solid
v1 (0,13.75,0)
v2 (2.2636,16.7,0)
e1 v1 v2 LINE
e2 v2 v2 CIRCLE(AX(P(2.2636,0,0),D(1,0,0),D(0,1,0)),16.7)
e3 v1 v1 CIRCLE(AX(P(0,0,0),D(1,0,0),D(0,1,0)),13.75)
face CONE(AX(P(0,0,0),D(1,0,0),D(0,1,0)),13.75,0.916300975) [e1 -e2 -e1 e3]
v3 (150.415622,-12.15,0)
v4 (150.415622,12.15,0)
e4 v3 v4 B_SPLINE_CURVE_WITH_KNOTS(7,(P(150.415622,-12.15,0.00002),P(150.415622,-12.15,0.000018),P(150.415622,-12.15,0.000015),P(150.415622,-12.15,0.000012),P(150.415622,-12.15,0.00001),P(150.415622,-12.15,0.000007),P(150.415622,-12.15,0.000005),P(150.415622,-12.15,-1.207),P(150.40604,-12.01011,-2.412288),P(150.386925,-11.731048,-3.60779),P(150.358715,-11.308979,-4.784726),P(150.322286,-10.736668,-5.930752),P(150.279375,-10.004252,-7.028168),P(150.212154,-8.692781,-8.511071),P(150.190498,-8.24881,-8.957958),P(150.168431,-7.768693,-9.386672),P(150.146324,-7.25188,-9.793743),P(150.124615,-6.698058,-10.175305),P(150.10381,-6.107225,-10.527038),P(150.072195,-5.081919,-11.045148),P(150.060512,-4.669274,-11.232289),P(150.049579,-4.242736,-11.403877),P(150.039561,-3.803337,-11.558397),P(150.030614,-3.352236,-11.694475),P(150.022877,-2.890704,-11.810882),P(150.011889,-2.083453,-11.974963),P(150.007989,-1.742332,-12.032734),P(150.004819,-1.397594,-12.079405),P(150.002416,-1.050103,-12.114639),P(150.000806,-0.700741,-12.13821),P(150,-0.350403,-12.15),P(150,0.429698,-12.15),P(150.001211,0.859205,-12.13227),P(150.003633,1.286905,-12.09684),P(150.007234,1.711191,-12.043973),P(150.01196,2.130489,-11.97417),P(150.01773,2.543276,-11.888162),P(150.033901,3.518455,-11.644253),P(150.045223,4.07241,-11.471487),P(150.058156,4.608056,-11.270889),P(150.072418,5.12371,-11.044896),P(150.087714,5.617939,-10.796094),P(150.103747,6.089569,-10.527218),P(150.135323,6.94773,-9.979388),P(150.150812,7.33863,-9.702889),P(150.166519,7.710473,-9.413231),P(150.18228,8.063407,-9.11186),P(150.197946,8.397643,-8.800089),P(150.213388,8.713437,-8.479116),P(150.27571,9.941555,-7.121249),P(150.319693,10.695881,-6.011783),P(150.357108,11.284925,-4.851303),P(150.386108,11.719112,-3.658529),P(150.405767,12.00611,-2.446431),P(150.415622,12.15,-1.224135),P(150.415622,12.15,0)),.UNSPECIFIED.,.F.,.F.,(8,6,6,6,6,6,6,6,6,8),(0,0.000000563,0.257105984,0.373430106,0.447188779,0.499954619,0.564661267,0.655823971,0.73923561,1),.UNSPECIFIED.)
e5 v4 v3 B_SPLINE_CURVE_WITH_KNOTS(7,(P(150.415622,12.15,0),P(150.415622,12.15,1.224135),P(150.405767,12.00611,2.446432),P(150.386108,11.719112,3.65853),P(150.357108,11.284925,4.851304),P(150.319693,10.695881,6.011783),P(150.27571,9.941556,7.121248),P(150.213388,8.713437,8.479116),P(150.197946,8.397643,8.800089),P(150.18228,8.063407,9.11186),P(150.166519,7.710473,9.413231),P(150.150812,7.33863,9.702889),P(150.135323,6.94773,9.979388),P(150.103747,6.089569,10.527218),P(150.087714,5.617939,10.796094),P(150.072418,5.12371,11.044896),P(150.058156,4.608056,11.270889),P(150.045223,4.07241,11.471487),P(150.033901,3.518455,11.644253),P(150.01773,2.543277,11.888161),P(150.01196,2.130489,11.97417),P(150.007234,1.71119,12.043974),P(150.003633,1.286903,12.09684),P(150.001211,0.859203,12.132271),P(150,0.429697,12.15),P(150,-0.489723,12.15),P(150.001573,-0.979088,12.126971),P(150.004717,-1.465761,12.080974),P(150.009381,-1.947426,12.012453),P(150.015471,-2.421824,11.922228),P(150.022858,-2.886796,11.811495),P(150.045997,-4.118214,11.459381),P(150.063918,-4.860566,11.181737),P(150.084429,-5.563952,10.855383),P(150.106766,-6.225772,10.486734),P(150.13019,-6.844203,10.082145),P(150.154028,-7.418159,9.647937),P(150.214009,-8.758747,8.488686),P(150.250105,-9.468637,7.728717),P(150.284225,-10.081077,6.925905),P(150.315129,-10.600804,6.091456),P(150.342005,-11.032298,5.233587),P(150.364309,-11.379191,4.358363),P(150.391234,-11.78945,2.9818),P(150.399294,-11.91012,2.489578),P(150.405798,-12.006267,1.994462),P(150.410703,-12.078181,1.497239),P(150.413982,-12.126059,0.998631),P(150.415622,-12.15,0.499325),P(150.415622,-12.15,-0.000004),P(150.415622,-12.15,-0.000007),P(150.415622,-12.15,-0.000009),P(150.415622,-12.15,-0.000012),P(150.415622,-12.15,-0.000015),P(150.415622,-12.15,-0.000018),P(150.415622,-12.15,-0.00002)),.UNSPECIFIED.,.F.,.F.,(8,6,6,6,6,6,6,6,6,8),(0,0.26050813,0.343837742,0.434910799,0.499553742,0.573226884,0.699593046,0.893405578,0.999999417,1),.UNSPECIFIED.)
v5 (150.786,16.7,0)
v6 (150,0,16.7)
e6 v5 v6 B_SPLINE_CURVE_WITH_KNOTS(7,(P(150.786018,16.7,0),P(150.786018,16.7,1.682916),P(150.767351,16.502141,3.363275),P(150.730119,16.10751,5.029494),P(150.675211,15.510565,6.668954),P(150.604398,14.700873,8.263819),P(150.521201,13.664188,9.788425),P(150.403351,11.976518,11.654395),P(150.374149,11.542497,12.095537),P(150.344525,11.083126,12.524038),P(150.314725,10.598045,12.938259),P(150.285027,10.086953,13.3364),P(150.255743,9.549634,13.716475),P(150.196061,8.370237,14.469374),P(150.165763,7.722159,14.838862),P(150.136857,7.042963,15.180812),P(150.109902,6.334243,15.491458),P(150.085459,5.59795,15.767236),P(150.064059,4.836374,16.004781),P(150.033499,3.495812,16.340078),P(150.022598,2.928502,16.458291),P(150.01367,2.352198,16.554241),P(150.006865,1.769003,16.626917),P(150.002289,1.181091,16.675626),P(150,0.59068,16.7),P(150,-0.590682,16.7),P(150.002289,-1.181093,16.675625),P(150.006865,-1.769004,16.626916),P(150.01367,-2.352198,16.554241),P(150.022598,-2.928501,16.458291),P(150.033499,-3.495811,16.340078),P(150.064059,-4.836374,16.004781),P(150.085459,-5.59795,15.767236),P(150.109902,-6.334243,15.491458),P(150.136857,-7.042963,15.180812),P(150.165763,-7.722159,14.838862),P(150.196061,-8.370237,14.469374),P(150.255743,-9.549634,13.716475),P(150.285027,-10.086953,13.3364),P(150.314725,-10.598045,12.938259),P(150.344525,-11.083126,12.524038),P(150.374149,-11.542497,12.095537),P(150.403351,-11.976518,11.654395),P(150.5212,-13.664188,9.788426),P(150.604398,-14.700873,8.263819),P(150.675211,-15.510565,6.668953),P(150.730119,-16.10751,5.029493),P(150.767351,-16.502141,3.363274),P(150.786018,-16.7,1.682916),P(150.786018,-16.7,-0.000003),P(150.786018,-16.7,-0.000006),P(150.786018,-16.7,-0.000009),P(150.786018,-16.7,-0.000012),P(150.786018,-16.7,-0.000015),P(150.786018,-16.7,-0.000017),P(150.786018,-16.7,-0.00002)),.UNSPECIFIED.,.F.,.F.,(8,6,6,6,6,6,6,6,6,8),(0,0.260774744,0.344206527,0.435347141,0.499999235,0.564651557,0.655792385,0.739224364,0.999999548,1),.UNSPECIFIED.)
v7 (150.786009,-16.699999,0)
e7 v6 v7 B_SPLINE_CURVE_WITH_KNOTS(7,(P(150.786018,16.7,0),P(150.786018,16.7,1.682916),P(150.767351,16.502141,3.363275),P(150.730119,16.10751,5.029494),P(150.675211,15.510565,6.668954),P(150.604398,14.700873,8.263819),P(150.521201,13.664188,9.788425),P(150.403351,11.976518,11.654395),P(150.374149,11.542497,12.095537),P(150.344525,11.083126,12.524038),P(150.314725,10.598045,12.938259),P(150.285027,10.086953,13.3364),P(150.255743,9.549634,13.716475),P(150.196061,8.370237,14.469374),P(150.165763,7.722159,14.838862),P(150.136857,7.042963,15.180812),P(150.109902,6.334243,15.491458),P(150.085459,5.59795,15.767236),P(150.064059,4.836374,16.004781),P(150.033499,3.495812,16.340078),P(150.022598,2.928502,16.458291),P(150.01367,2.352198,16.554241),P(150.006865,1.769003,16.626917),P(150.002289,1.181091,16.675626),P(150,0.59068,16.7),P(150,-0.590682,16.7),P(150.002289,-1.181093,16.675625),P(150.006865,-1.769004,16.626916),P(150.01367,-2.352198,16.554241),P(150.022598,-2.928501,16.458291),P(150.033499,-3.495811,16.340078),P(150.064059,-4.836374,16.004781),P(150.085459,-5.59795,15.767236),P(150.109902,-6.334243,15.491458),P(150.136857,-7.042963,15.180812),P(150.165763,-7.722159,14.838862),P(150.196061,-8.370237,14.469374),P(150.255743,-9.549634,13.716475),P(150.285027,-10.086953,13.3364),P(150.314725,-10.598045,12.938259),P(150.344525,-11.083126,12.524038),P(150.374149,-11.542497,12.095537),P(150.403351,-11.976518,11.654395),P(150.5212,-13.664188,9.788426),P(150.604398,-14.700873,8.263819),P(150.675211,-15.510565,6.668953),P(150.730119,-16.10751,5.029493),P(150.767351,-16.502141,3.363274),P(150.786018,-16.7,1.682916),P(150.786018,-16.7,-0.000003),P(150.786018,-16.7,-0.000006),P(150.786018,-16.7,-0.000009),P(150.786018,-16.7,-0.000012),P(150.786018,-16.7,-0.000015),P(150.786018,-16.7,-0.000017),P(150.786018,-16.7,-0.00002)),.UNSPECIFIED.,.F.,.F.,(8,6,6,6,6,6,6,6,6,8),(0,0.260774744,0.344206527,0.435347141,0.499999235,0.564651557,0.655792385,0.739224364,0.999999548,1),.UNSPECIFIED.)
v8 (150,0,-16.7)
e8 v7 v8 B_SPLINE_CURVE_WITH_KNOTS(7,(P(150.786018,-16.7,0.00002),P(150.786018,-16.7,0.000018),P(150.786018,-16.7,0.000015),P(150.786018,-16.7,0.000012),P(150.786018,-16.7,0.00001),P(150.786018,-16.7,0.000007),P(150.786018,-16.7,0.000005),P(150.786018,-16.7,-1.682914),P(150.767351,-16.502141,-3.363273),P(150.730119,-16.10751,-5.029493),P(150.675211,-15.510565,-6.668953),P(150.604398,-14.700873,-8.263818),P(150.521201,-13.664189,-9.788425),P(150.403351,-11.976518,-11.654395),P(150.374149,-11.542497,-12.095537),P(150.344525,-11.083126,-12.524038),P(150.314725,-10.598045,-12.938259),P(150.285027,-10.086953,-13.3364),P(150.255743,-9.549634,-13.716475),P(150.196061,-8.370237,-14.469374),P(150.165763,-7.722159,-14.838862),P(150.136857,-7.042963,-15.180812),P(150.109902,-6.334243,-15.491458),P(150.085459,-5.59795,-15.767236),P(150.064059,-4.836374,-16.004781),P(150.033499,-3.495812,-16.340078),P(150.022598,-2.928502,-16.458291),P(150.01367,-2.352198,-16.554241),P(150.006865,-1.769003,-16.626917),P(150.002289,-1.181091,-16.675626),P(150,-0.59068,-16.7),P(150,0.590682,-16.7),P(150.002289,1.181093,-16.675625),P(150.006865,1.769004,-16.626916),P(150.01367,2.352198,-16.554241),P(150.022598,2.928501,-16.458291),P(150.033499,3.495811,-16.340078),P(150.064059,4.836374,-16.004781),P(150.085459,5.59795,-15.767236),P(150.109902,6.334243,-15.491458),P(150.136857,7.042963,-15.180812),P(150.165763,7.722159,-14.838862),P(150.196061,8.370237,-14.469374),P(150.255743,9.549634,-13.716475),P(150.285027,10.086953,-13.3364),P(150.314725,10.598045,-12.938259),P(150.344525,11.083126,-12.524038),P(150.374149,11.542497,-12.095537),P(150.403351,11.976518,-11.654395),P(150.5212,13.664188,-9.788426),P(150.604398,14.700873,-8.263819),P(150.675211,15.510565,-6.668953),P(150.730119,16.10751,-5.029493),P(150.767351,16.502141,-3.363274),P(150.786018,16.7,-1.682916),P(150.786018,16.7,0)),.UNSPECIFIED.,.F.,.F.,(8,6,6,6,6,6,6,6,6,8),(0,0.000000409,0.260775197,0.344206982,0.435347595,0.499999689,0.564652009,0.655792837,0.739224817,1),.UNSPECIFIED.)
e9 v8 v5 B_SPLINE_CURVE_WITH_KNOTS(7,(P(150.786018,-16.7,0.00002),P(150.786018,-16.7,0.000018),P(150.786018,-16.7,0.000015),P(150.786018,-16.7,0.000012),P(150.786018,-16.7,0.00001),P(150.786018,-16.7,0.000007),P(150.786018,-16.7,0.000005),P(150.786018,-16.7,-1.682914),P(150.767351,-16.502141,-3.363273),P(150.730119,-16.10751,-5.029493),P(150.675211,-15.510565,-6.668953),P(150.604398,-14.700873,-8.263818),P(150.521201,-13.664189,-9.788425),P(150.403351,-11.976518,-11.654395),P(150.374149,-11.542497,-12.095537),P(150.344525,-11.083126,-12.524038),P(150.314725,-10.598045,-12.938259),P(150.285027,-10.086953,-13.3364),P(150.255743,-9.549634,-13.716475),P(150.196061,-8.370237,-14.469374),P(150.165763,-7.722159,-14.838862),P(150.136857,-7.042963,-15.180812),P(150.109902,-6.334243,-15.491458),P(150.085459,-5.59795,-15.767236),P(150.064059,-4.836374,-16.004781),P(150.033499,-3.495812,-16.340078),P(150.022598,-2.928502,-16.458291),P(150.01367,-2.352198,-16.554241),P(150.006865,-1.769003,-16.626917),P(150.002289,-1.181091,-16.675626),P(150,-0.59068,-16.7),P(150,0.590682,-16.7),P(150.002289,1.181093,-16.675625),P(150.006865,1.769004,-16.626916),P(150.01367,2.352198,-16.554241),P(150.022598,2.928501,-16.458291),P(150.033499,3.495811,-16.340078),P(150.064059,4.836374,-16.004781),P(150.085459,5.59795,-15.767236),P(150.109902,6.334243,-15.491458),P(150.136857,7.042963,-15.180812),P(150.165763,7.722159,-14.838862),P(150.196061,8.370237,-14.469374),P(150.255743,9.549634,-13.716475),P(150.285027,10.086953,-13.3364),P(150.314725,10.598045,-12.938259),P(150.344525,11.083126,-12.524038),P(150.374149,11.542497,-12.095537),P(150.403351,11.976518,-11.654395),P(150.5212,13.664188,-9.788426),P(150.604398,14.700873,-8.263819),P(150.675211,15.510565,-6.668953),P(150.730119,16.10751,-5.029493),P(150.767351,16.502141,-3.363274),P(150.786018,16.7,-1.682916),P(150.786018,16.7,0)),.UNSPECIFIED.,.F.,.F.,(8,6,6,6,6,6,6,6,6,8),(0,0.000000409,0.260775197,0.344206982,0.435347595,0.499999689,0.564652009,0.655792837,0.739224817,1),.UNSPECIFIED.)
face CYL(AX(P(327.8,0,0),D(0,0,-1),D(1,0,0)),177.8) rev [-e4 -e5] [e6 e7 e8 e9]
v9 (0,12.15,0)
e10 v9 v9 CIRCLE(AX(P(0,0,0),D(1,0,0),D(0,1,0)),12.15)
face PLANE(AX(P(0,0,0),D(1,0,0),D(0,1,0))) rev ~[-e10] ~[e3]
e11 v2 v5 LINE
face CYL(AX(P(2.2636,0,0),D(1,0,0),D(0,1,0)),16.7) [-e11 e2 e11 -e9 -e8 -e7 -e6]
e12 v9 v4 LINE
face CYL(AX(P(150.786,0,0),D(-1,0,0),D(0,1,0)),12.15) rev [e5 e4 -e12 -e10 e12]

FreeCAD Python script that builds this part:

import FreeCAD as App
import Part
import Sketcher
from FreeCAD import Vector
Q = App.Units.Quantity


def add_polygon(sketch, points):
    """Adds a closed chain of lines whose ends are joined by coincident constraints."""
    first, n = sketch.GeometryCount, len(points)
    for a, b in zip(points, points[1:] + points[:1]):
        sketch.addGeometry(Part.LineSegment(App.Vector(*a, 0), App.Vector(*b, 0)), False)
    for i in range(n):
        sketch.addConstraint(Sketcher.Constraint("Coincident", first + i, 2, first + (i + 1) % n, 1))

doc = App.newDocument("Part")
body = doc.addObject("PartDesign::Body", "Body")

# Sketch on XY plane
sketch1 = doc.addObject("Sketcher::SketchObject", "Sketch")
body.addObject(sketch1)
sketch1.AttachmentSupport = (doc.XY_Plane, [""])
sketch1.MapMode = "FlatFace"
add_polygon(sketch1, [(2.3, 16.7), (0, 13.8), (0, 12.2), (150.8, 12.2), (150.8, 16.7)])  # lines 0-4
sketch1.addConstraint(Sketcher.Constraint("Vertical", 1))
sketch1.addConstraint(Sketcher.Constraint("Horizontal", 2))
sketch1.addConstraint(Sketcher.Constraint("Vertical", 3))
sketch1.addConstraint(Sketcher.Constraint("Horizontal", 4))
sketch1.addConstraint(Sketcher.Constraint("PointOnObject", 0, 2, -2))
sketch1.addConstraint(Sketcher.Constraint("DistanceY", 1, 2, 1, 1, Q("0.063 in")))
sketch1.addConstraint(Sketcher.Constraint("Angle", 0, Q("-127.4998 deg")))
sketch1.addConstraint(Sketcher.Constraint("Distance", 0, Q("0.1464 in")))
sketch1.addConstraint(Sketcher.Constraint("DistanceX", 2, 1, 2, 2, Q("150.786 mm")))
sketch1.addConstraint(Sketcher.Constraint("DistanceY", -1, 1, 0, 2, Q("13.75 mm")))
revolution = doc.addObject("PartDesign::Revolution", "Revolution")
body.addObject(revolution)
revolution.Profile = sketch1
revolution.ReferenceAxis = (sketch1, ["H_Axis"])
revolution.Angle = 360

# Sketch on XY plane
sketch2 = doc.addObject("Sketcher::SketchObject", "Sketch001")
body.addObject(sketch2)
sketch2.AttachmentSupport = (doc.XY_Plane, [""])
sketch2.MapMode = "FlatFace"
sketch2.addGeometry(Part.Circle(Vector(328, 0, 0), Vector(0, 0, 1), 178), False)
sketch2.addConstraint(Sketcher.Constraint("PointOnObject", 0, 3, -1))
sketch2.addConstraint(Sketcher.Constraint("Diameter", 0, Q("14 in")))
sketch2.addConstraint(Sketcher.Constraint("DistanceX", -1, 1, 0, 3, Q("12.9055 in")))
pocket1 = doc.addObject("PartDesign::Pocket", "Pocket")
body.addObject(pocket1)
pocket1.Profile = sketch2
pocket1.Length = 33.4
pocket1.Midplane = True

doc.recompute()
